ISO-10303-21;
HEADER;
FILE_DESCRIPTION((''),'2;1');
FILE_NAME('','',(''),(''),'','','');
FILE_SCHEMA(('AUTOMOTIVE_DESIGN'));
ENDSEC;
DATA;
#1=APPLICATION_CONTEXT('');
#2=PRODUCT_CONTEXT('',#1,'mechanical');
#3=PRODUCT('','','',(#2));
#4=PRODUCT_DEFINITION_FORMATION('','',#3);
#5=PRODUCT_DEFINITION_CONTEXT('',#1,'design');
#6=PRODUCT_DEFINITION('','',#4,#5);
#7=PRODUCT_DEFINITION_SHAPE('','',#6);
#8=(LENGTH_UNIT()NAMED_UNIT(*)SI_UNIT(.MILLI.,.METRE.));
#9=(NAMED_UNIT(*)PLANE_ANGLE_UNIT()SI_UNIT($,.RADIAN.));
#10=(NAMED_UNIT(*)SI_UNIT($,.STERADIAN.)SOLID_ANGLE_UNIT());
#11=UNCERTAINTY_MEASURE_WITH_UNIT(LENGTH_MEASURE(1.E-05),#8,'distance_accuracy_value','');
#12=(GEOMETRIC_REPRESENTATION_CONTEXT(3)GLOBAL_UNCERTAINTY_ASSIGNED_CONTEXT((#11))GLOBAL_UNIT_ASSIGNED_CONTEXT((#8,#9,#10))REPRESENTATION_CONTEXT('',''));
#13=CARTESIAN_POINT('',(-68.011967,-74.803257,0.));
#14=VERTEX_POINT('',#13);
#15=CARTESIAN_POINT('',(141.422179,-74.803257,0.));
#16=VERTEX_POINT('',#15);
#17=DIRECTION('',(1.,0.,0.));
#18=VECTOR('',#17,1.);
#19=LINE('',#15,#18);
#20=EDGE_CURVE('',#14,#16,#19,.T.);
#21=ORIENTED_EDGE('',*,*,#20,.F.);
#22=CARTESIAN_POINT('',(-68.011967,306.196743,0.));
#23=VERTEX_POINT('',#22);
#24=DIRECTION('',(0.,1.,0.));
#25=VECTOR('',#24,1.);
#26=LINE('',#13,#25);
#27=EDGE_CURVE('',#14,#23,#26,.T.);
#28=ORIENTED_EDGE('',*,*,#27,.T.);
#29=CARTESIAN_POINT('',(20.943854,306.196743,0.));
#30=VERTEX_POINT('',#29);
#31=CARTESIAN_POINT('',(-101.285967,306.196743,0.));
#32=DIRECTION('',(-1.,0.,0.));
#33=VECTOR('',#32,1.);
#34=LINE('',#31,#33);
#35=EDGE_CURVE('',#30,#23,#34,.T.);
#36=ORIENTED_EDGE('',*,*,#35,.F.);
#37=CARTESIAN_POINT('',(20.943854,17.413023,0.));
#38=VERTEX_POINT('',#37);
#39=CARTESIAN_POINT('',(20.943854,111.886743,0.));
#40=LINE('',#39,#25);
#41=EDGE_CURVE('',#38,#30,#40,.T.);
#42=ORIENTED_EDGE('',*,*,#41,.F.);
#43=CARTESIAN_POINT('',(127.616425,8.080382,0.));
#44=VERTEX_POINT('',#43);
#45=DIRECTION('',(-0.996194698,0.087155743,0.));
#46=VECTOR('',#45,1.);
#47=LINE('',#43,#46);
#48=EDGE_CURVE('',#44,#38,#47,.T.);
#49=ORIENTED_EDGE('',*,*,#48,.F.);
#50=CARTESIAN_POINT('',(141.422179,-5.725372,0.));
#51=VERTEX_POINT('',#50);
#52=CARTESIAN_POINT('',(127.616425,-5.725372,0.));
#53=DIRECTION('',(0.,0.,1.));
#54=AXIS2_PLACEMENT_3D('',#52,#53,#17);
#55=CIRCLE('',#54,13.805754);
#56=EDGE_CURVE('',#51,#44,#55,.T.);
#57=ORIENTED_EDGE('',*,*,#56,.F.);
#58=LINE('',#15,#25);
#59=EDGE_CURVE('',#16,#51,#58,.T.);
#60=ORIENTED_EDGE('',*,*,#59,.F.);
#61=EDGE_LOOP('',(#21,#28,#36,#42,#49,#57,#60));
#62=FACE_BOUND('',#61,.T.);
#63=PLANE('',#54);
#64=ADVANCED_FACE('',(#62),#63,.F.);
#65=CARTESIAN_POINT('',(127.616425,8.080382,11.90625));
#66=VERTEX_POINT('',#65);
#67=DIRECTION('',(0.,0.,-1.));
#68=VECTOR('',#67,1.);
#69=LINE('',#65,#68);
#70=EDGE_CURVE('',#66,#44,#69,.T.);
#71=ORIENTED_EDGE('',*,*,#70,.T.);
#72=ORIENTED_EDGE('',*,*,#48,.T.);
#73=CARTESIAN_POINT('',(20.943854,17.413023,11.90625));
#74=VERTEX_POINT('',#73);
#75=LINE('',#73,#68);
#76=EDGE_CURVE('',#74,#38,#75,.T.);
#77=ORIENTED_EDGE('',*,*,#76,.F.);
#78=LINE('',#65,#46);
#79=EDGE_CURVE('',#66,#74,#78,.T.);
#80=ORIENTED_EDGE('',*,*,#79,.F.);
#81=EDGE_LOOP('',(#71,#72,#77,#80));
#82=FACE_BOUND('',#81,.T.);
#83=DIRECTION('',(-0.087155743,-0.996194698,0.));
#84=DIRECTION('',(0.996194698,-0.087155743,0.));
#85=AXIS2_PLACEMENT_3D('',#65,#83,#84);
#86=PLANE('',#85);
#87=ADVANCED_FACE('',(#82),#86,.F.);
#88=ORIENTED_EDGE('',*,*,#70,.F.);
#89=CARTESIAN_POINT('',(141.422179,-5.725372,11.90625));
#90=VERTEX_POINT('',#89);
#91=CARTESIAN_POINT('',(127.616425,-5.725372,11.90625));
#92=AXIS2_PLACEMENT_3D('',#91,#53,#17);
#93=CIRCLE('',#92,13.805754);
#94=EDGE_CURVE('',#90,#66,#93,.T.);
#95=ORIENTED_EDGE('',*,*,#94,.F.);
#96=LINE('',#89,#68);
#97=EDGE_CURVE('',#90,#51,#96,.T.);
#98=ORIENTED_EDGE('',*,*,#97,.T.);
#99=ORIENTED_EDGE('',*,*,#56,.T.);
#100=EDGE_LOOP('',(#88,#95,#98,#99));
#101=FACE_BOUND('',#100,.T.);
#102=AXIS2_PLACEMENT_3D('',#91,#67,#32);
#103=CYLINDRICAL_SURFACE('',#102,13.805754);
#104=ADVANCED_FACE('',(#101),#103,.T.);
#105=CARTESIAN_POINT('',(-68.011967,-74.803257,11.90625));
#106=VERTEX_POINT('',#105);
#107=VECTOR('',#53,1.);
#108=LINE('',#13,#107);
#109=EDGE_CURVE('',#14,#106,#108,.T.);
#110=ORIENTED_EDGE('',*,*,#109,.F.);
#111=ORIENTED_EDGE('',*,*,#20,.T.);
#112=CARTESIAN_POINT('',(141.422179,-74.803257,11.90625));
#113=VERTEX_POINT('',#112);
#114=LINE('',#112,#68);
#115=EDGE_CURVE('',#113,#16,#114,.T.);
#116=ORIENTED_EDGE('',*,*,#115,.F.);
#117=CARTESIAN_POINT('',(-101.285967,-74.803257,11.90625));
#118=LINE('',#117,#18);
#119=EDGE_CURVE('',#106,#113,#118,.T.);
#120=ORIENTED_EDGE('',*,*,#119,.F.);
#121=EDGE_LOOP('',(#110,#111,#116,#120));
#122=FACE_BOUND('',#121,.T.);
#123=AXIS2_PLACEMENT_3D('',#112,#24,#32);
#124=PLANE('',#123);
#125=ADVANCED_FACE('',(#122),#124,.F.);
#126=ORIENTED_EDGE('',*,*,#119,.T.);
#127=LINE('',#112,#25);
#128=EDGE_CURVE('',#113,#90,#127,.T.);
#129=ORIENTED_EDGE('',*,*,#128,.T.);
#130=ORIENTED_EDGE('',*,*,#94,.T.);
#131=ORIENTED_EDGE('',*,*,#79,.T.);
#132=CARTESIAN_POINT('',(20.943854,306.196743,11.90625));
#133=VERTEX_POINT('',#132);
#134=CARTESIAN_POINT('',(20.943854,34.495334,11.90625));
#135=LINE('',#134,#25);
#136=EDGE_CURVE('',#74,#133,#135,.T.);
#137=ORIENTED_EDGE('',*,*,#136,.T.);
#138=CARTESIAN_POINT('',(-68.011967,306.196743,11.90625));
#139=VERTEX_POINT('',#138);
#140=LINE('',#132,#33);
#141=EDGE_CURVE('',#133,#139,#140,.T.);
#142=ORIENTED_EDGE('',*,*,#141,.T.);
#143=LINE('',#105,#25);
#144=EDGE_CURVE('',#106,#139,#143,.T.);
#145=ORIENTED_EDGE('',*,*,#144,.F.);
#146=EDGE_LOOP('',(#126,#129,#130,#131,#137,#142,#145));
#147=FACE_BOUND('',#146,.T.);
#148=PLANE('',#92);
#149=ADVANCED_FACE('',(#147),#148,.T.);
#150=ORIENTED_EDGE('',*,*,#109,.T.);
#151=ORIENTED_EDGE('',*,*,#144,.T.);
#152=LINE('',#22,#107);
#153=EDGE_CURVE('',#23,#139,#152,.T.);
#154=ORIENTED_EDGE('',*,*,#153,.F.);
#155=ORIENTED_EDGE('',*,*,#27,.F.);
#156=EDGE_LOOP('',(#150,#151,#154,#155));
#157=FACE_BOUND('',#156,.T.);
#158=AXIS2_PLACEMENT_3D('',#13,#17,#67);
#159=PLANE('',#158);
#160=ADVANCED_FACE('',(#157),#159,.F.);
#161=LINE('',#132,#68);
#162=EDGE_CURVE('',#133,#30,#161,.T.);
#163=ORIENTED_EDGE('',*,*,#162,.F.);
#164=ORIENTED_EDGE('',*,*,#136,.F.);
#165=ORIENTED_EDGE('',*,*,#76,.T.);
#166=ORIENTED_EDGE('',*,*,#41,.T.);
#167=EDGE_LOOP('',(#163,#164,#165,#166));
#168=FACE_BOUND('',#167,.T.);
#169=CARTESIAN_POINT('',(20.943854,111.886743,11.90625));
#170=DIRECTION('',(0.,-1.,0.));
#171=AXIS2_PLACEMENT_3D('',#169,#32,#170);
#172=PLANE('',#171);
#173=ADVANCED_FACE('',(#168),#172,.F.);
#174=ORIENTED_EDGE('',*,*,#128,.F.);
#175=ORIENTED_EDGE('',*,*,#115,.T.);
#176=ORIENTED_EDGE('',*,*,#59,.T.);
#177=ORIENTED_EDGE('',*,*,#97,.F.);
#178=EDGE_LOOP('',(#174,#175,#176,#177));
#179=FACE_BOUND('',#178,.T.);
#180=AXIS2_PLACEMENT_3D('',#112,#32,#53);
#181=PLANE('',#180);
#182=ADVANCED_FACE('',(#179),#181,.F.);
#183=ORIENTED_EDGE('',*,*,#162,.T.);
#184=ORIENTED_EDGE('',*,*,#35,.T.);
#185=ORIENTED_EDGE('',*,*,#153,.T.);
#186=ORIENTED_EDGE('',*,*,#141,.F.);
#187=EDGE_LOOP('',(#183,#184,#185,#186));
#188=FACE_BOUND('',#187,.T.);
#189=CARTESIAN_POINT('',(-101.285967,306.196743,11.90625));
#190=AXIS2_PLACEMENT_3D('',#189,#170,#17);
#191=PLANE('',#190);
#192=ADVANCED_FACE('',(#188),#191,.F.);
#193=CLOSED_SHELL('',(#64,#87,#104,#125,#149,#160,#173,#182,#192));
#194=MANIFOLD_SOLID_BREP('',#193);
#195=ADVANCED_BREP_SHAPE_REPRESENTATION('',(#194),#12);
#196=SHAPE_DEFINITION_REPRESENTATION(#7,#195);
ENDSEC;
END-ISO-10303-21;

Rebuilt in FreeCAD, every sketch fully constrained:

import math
import FreeCAD as App
import Part
import Sketcher
Q = App.Units.Quantity

doc = App.newDocument("Part")
body = doc.addObject("PartDesign::Body", "Body")

# Sketch on XY plane
sketch1 = doc.addObject("Sketcher::SketchObject", "Sketch")
body.addObject(sketch1)
sketch1.AttachmentSupport = (doc.XY_Plane, [""])
sketch1.MapMode = "FlatFace"
sketch1.addGeometry(Part.LineSegment(App.Vector(20.943854, 306.196743, 0), App.Vector(-101.285967, 306.196743, 0)), False)
sketch1.addGeometry(Part.LineSegment(App.Vector(-101.285967, 306.196743, 0), App.Vector(-101.285967, -74.803257, 0)), False)
sketch1.addGeometry(Part.LineSegment(App.Vector(-101.285967, -74.803257, 0), App.Vector(141.422179, -74.803257, 0)), False)
sketch1.addGeometry(Part.LineSegment(App.Vector(141.422179, -74.803257, 0), App.Vector(141.422179, -5.725372, 0)), False)
sketch1.addGeometry(Part.ArcOfCircle(Part.Circle(App.Vector(127.616425, -5.725372, 0), App.Vector(0, 0, 1), 13.805754), math.radians(0), math.radians(90)), False)
sketch1.addGeometry(Part.LineSegment(App.Vector(127.616425, 8.080382, 0), App.Vector(20.943854, 17.413023, 0)), False)
sketch1.addGeometry(Part.LineSegment(App.Vector(20.943854, 17.413023, 0), App.Vector(20.943854, 306.196743, 0)), False)
sketch1.addConstraint(Sketcher.Constraint("Coincident", 0, 2, 1, 1))
sketch1.addConstraint(Sketcher.Constraint("Coincident", 1, 2, 2, 1))
sketch1.addConstraint(Sketcher.Constraint("Coincident", 2, 2, 3, 1))
sketch1.addConstraint(Sketcher.Constraint("Tangent", 3, 2, 4, 1))
sketch1.addConstraint(Sketcher.Constraint("Coincident", 4, 2, 5, 1))
sketch1.addConstraint(Sketcher.Constraint("Coincident", 5, 2, 6, 1))
sketch1.addConstraint(Sketcher.Constraint("Coincident", 6, 2, 0, 1))
sketch1.addConstraint(Sketcher.Constraint("Horizontal", 0))
sketch1.addConstraint(Sketcher.Constraint("Vertical", 1))
sketch1.addConstraint(Sketcher.Constraint("Horizontal", 2))
sketch1.addConstraint(Sketcher.Constraint("Vertical", 3))
sketch1.addConstraint(Sketcher.Constraint("Vertical", 6))
sketch1.addConstraint(Sketcher.Constraint("DistanceY", 1, 2, 1, 1, Q("15 in")))
sketch1.addConstraint(Sketcher.Constraint("Angle", 5, Q("175 deg")))
sketch1.addConstraint(Sketcher.Constraint("Radius", 4, 13.805754))
sketch1.addConstraint(Sketcher.Constraint("DistanceX", 0, 2, 0, 1, 122.229821))
sketch1.addConstraint(Sketcher.Constraint("DistanceY", 6, 1, 6, 2, 288.78372))
sketch1.addConstraint(Sketcher.Constraint("DistanceX", 2, 1, 2, 2, 242.708146))
sketch1.addConstraint(Sketcher.Constraint("DistanceY", 3, 1, 3, 2, 69.077885))
sketch1.addConstraint(Sketcher.Constraint("DistanceX", -1, 1, 2, 2, 141.422179))
sketch1.addConstraint(Sketcher.Constraint("DistanceY", -1, 1, 4, 2, 8.080382))
pad1 = doc.addObject("PartDesign::Pad", "Pad")
body.addObject(pad1)
pad1.Profile = sketch1
pad1.Length = Q("0.46875 in")

# Sketch on XY plane
sketch2 = doc.addObject("Sketcher::SketchObject", "Sketch001")
body.addObject(sketch2)
sketch2.AttachmentSupport = (doc.XY_Plane, [""])
sketch2.MapMode = "FlatFace"
sketch2.AttachmentOffset = App.Placement(App.Vector(0, 0, 0.46875 * 25.4), App.Rotation())
sketch2.addGeometry(Part.LineSegment(App.Vector(-101.285967, 306.196743, 0), App.Vector(-101.285967, -74.803257, 0)), False)
sketch2.addGeometry(Part.LineSegment(App.Vector(-101.285967, -74.803257, 0), App.Vector(-68.011967, -74.803257, 0)), False)
sketch2.addGeometry(Part.LineSegment(App.Vector(-68.011967, -74.803257, 0), App.Vector(-68.011967, 306.196743, 0)), False)
sketch2.addGeometry(Part.LineSegment(App.Vector(-68.011967, 306.196743, 0), App.Vector(-101.285967, 306.196743, 0)), False)
sketch2.addConstraint(Sketcher.Constraint("Coincident", 0, 2, 1, 1))
sketch2.addConstraint(Sketcher.Constraint("Coincident", 1, 2, 2, 1))
sketch2.addConstraint(Sketcher.Constraint("Coincident", 2, 2, 3, 1))
sketch2.addConstraint(Sketcher.Constraint("Coincident", 3, 2, 0, 1))
sketch2.addConstraint(Sketcher.Constraint("Vertical", 0))
sketch2.addConstraint(Sketcher.Constraint("Horizontal", 1))
sketch2.addConstraint(Sketcher.Constraint("Vertical", 2))
sketch2.addConstraint(Sketcher.Constraint("Horizontal", 3))
sketch2.addConstraint(Sketcher.Constraint("DistanceY", 0, 2, 0, 1, Q("15 in")))
sketch2.addConstraint(Sketcher.Constraint("DistanceX", 1, 1, 1, 2, Q("1.31 in")))
sketch2.addConstraint(Sketcher.Constraint("DistanceX", 0, 2, -1, 1, 101.285967))
sketch2.addConstraint(Sketcher.Constraint("DistanceY", 0, 2, -1, 1, 74.803257))
pocket1 = doc.addObject("PartDesign::Pocket", "Pocket")
body.addObject(pocket1)
pocket1.Profile = sketch2
pocket1.Type = "ThroughAll"

doc.recompute()
